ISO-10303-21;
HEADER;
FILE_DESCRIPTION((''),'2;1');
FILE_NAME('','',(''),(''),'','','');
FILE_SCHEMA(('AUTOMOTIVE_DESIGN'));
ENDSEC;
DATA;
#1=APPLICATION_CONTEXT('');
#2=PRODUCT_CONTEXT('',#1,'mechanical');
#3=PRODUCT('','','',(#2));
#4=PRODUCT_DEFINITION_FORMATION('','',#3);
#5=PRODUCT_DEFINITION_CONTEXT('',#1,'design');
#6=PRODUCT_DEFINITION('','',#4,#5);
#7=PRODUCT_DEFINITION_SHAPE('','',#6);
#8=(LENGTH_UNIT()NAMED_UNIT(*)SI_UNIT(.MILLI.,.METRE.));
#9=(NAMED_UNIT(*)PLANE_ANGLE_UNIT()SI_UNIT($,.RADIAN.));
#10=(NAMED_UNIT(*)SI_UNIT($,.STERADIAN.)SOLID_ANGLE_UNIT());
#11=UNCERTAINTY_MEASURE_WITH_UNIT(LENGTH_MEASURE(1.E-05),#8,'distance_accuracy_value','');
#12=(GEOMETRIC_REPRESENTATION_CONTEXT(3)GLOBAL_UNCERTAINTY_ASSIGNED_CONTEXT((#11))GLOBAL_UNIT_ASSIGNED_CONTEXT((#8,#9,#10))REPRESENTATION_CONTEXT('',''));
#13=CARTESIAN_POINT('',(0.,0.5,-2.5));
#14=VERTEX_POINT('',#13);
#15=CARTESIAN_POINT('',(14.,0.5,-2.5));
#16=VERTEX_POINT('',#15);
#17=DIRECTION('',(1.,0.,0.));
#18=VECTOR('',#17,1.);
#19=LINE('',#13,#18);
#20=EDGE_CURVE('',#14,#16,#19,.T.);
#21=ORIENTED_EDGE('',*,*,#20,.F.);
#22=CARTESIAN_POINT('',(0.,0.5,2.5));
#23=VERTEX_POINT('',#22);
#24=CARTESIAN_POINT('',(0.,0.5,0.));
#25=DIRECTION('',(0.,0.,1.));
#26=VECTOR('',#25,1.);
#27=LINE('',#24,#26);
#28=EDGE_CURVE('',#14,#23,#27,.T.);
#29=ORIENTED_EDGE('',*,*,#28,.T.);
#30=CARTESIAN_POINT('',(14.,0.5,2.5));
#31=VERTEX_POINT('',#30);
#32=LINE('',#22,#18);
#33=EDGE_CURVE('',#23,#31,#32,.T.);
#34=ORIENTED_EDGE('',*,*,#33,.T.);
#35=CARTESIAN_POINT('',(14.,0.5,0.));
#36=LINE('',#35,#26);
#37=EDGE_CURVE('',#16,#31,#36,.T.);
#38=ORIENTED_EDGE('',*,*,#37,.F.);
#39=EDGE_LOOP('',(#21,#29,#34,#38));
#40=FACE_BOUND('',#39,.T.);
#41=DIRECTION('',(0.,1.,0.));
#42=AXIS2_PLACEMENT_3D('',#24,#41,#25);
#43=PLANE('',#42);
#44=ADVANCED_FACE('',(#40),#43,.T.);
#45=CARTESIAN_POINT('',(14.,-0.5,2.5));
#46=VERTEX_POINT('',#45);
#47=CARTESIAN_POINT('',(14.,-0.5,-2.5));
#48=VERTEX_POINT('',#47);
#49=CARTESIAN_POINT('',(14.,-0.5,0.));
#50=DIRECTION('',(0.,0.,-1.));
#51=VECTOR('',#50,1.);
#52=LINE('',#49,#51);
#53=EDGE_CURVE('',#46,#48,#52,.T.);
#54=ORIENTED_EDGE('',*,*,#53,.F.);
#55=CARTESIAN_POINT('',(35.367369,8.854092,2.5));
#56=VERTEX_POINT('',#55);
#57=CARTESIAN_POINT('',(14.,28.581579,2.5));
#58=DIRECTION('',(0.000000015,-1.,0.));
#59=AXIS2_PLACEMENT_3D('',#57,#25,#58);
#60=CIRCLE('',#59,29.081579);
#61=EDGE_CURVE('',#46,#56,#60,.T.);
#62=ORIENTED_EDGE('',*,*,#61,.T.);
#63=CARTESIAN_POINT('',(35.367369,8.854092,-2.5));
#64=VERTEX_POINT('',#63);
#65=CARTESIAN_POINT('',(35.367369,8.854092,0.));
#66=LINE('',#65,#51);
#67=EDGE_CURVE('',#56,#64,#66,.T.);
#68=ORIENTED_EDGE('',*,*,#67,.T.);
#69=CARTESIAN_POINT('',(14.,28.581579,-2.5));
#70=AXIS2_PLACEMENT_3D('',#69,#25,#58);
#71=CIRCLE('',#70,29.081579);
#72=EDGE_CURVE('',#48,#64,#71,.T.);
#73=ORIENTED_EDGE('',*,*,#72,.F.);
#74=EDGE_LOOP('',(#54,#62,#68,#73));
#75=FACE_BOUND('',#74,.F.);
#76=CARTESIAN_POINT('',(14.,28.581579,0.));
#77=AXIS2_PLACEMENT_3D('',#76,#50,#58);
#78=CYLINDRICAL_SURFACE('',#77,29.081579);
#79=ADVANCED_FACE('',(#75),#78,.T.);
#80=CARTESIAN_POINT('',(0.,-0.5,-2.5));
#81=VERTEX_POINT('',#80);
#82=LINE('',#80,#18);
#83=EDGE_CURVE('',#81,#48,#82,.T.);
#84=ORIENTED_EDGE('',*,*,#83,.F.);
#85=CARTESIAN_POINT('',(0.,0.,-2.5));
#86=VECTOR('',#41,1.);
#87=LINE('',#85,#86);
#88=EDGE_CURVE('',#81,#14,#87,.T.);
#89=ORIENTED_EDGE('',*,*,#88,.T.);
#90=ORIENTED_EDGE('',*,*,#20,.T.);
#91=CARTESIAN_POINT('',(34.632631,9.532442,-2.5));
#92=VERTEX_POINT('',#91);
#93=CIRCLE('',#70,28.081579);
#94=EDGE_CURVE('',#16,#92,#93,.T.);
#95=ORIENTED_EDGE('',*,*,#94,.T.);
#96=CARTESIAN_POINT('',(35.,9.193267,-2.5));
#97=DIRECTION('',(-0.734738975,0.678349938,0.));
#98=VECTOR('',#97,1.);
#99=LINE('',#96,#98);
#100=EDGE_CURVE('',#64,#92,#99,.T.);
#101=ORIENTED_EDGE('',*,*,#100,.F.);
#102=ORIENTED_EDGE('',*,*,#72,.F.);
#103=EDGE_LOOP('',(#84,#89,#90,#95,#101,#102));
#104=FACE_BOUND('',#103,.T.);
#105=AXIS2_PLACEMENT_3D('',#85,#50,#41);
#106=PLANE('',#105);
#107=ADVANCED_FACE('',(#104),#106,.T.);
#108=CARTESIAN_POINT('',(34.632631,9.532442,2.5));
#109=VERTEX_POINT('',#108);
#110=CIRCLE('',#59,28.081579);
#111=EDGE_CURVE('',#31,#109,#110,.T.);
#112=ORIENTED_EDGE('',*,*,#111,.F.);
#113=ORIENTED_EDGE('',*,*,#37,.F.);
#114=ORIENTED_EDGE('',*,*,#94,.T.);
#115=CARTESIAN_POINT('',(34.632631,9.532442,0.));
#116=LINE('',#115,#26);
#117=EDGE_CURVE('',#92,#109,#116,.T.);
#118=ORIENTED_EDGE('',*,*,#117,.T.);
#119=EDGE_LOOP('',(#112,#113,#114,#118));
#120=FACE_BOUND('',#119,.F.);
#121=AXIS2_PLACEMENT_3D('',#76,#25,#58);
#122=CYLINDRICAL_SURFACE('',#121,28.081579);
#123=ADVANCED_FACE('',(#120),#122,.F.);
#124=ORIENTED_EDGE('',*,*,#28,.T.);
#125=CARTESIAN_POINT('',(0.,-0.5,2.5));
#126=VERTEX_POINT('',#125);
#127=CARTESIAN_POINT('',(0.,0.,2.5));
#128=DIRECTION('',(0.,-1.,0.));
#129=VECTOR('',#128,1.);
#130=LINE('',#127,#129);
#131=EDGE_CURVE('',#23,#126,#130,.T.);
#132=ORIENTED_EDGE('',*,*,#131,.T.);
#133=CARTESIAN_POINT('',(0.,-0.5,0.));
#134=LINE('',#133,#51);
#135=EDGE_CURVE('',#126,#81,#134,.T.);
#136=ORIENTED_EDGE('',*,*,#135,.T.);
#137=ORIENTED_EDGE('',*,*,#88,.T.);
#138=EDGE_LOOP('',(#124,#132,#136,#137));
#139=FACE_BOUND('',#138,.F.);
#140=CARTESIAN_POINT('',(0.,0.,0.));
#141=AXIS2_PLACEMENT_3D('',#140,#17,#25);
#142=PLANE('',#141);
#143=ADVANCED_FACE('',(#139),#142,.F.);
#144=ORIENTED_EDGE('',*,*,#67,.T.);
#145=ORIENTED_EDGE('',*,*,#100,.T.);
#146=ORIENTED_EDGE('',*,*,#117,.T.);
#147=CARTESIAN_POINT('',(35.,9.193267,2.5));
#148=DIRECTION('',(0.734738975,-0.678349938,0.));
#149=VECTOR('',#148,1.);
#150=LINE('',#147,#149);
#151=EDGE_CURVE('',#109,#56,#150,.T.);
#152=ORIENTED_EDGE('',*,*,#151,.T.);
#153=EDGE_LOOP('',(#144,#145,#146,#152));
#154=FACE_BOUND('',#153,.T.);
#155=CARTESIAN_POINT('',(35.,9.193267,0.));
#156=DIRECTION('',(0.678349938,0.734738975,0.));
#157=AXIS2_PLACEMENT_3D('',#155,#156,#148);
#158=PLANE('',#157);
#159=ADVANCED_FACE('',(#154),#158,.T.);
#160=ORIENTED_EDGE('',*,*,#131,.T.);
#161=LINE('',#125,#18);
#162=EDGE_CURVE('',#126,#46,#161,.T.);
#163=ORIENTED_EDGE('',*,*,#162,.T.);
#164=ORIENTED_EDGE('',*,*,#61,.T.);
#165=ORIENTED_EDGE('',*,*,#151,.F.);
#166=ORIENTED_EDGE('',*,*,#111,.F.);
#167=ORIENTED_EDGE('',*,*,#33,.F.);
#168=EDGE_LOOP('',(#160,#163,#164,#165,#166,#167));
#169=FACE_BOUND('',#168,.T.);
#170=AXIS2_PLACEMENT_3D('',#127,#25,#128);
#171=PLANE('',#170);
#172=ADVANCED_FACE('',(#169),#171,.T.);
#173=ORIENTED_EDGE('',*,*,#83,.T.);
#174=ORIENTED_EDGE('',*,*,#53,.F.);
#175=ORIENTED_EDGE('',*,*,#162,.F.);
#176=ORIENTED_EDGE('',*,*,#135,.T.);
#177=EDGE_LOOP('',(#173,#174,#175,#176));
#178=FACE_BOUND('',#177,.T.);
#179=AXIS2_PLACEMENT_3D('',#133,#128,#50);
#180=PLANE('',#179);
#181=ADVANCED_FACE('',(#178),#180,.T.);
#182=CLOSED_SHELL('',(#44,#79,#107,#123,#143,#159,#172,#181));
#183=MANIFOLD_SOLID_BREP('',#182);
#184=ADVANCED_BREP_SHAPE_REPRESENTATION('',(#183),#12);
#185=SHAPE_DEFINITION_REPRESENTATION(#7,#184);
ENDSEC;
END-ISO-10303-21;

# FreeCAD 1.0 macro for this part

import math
import FreeCAD as App
import Part
import Sketcher
from FreeCAD import Vector


def add_polygon(sketch, points):
    """Adds a closed chain of lines whose ends are joined by coincident constraints."""
    first, n = sketch.GeometryCount, len(points)
    for a, b in zip(points, points[1:] + points[:1]):
        sketch.addGeometry(Part.LineSegment(App.Vector(*a, 0), App.Vector(*b, 0)), False)
    for i in range(n):
        sketch.addConstraint(Sketcher.Constraint("Coincident", first + i, 2, first + (i + 1) % n, 1))

doc = App.newDocument("Part")
body = doc.addObject("PartDesign::Body", "Body")

# Sketch on YZ plane
sketch1 = doc.addObject("Sketcher::SketchObject", "Sketch")
body.addObject(sketch1)
sketch1.AttachmentSupport = (doc.YZ_Plane, [""])
sketch1.MapMode = "FlatFace"
add_polygon(sketch1, [(-0.5, 2.5), (-0.5, -2.5), (0.5, -2.5), (0.5, 2.5)])  # lines 0-3
sketch1.addConstraint([
    Sketcher.Constraint("Vertical", 0),
    Sketcher.Constraint("Horizontal", 1),
    Sketcher.Constraint("Vertical", 2),
    Sketcher.Constraint("Horizontal", 3),
    Sketcher.Constraint("Symmetric", 0, 2, 2, 2, -1, 1),
    Sketcher.Constraint("DistanceX", 1, 1, 1, 2, 1.0),
    Sketcher.Constraint("DistanceY", 0, 2, 0, 1, 5.0),
])

# Sketch on XY plane
sketch2 = doc.addObject("Sketcher::SketchObject", "Sketch001")
body.addObject(sketch2)
sketch2.AttachmentSupport = (doc.XY_Plane, [""])
sketch2.MapMode = "FlatFace"
sketch2.addGeometry([
    Part.LineSegment(Vector(0, 0, 0), Vector(14, 0, 0)),
    Part.ArcOfCircle(Part.Circle(Vector(14, 28.581579, 0), Vector(0, 0, 1), 28.581579), math.radians(-89.999999), math.radians(-42.714835)),
], False)
sketch2.addConstraint([
    Sketcher.Constraint("Tangent", 0, 2, 1, 1),
    Sketcher.Constraint("Horizontal", 0),
    Sketcher.Constraint("Coincident", 0, 1, -1, 1),
    Sketcher.Constraint("DistanceX", 0, 1, 0, 2, 14.0),
    Sketcher.Constraint("DistanceX", -1, 1, 1, 2, 35.0),
    Sketcher.Constraint("Radius", 1, 28.581579),
])
doc.recompute()

additivepipe = doc.addObject("PartDesign::AdditivePipe", "AdditivePipe")
body.addObject(additivepipe)
additivepipe.Profile = sketch1
additivepipe.Spine = (sketch2, ["Edge1", "Edge2"])

doc.recompute()
